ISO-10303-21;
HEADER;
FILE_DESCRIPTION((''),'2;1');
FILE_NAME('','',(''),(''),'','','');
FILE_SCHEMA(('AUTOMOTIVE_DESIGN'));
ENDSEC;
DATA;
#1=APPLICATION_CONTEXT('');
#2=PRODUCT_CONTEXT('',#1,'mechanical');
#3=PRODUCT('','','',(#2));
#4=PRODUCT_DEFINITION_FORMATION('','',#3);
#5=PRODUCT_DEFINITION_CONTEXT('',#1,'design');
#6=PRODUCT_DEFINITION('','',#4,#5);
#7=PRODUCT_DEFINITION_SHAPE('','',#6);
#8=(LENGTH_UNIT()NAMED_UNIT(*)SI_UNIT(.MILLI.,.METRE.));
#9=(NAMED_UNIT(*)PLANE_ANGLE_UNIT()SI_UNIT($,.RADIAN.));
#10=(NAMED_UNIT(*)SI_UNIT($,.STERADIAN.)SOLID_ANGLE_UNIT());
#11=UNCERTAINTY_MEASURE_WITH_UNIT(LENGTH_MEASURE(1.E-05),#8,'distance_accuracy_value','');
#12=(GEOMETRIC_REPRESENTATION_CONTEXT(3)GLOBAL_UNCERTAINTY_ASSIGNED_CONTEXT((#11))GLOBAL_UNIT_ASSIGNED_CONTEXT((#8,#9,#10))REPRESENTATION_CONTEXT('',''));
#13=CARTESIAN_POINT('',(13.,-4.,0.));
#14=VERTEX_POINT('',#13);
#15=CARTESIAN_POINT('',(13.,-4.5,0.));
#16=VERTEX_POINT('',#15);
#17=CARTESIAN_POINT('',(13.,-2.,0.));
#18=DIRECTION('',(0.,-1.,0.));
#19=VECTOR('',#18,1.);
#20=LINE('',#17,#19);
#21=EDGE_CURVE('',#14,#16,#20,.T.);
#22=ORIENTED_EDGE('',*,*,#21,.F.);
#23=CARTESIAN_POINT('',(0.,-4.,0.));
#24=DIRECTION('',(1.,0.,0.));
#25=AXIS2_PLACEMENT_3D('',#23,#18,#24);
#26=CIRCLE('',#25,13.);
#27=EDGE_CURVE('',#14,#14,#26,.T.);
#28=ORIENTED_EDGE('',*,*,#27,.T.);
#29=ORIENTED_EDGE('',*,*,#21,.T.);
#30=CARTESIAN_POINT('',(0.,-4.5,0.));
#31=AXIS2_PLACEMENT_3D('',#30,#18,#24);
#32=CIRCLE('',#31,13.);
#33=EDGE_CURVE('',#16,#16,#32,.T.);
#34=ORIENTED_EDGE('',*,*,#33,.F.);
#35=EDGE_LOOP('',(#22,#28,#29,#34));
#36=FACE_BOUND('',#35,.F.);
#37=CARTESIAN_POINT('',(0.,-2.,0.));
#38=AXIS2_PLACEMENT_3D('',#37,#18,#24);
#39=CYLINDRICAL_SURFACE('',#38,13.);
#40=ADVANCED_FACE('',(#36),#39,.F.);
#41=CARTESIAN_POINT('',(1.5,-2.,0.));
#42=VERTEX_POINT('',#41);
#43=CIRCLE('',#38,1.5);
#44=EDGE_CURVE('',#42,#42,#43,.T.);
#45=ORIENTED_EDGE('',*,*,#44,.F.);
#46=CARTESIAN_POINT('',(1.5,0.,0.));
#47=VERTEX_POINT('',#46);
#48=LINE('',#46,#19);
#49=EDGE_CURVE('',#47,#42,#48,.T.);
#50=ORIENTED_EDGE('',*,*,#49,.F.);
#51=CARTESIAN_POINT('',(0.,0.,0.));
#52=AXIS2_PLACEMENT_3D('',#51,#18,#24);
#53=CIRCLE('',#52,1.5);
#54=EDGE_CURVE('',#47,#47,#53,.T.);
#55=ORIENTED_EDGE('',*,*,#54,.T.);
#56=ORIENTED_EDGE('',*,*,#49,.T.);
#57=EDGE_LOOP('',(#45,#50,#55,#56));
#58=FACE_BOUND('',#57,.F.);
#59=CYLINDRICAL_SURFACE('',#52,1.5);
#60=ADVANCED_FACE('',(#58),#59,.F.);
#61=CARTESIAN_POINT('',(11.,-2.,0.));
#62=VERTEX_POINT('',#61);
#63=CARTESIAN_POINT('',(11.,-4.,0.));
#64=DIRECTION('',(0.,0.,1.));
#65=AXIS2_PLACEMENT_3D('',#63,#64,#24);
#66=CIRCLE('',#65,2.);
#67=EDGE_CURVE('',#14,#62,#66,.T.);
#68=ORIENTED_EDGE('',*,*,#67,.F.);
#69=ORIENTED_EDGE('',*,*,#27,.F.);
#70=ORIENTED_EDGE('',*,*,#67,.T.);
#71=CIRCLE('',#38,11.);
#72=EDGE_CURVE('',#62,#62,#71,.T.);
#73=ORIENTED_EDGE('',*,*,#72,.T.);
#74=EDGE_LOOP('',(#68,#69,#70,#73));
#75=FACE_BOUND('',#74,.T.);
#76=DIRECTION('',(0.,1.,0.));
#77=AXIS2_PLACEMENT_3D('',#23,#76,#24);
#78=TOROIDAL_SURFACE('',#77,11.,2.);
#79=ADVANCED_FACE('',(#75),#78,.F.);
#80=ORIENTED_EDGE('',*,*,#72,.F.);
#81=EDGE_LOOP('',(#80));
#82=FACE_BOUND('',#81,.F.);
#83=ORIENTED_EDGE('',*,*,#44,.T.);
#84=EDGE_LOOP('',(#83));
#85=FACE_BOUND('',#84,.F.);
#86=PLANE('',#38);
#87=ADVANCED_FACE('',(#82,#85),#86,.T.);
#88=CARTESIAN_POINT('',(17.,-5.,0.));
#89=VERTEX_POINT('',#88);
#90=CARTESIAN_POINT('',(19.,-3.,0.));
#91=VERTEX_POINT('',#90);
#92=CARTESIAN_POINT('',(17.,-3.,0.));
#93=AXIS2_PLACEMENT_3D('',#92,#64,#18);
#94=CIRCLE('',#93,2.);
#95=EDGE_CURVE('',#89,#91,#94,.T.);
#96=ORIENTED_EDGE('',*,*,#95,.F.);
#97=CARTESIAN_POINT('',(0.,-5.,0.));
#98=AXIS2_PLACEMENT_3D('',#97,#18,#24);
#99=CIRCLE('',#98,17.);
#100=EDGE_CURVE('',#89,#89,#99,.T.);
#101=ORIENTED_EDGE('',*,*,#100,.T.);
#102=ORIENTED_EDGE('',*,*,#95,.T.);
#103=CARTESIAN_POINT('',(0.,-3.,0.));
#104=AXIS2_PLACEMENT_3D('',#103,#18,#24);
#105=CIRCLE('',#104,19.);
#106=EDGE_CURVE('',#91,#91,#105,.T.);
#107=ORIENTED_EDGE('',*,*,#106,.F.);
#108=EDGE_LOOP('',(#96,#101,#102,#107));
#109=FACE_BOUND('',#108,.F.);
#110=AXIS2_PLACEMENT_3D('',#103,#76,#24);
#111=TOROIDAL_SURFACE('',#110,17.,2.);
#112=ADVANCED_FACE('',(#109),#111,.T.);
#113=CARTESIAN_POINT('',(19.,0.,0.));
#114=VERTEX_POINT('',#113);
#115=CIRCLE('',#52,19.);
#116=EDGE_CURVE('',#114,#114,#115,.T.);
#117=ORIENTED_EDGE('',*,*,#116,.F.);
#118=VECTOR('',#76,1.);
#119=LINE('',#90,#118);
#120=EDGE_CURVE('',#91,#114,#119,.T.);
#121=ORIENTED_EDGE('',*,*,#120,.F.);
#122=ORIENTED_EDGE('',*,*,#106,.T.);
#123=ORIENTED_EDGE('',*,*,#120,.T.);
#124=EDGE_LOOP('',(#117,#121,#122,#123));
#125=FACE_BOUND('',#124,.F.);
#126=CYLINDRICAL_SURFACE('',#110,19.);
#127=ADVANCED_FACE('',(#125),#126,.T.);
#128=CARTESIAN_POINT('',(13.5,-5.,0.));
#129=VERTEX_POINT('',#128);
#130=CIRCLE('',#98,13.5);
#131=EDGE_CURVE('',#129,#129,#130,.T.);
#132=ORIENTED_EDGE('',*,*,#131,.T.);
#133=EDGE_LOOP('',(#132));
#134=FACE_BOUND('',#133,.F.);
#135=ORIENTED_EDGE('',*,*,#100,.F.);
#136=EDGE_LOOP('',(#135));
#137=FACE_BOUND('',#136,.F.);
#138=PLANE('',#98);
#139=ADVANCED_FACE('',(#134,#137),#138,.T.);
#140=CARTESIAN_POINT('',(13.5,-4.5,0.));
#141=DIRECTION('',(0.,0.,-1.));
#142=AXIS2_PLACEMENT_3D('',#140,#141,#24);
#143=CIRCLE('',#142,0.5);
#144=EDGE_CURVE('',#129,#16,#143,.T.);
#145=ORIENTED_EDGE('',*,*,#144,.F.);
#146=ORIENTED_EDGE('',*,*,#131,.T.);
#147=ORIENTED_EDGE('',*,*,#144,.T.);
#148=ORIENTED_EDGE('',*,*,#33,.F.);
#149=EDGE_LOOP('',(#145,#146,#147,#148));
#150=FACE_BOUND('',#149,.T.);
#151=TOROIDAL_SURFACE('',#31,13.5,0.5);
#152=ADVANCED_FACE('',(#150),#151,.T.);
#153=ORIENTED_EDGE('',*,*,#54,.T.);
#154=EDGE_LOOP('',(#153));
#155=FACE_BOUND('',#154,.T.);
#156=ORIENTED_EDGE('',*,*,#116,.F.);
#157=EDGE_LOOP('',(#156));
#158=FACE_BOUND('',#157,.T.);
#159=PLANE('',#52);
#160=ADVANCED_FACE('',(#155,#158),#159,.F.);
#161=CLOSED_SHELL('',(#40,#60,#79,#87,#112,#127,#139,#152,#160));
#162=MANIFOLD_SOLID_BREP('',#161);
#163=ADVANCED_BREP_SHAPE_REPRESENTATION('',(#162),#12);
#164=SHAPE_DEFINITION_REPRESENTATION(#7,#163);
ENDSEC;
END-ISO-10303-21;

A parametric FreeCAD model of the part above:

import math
import FreeCAD as App
import Part
import Sketcher
from FreeCAD import Vector
Q = App.Units.Quantity


def edges_at(feature, points):
    """Names of the edges that pass closest to the given points."""
    edges = feature.Shape.Edges
    near = lambda p: min(range(len(edges)), key=lambda i: edges[i].distToShape(Part.Vertex(*p))[0])
    return sorted({f"Edge{near(p) + 1}" for p in points})

doc = App.newDocument("Part")
body = doc.addObject("PartDesign::Body", "Body")

# Sketch on XY plane
sketch1 = body.newObject("Sketcher::SketchObject", "Sketch")
sketch1.AttachmentSupport = (doc.getObject("XY_Plane"), [""])
sketch1.MapMode = "FlatFace"
sketch1.addGeometry([
    Part.LineSegment(Vector(19, 0, 0), Vector(1.5, 0, 0)),  # 0
    Part.LineSegment(Vector(1.5, 0, 0), Vector(1.5, -2, 0)),  # 1
    Part.LineSegment(Vector(1.5, -2, 0), Vector(13, -2, 0)),  # 2
    Part.LineSegment(Vector(13, -2, 0), Vector(13, -5, 0)),  # 3
    Part.LineSegment(Vector(13, -5, 0), Vector(17, -5, 0)),  # 4
    Part.ArcOfCircle(Part.Circle(Vector(17, -3, 0), Vector(0, 0, 1), 2), math.radians(-90), math.radians(0)),  # 5
    Part.LineSegment(Vector(19, -3, 0), Vector(19, 0, 0)),  # 6
], False)
sketch1.addConstraint([
    Sketcher.Constraint("Coincident", 0, 2, 1, 1),
    Sketcher.Constraint("Coincident", 1, 2, 2, 1),
    Sketcher.Constraint("Coincident", 2, 2, 3, 1),
    Sketcher.Constraint("Coincident", 3, 2, 4, 1),
    Sketcher.Constraint("Tangent", 4, 2, 5, 1),
    Sketcher.Constraint("Tangent", 5, 2, 6, 1),
    Sketcher.Constraint("Coincident", 6, 2, 0, 1),
    Sketcher.Constraint("Horizontal", 0),
    Sketcher.Constraint("Vertical", 1),
    Sketcher.Constraint("Horizontal", 2),
    Sketcher.Constraint("Vertical", 3),
    Sketcher.Constraint("Horizontal", 4),
    Sketcher.Constraint("Vertical", 6),
    Sketcher.Constraint("PointOnObject", 0, 2, -1),
    Sketcher.Constraint("Equal", 3, 6),
    Sketcher.Constraint("Radius", 5, Q("2 mm")),
    Sketcher.Constraint("DistanceX", 4, 1, 4, 2, Q("4 mm")),
    Sketcher.Constraint("DistanceY", 3, 2, -1, 1, Q("5 mm")),
    Sketcher.Constraint("DistanceX", -1, 1, 5, 2, Q("19 mm")),
    Sketcher.Constraint("DistanceX", -1, 1, 0, 2, Q("1.5 mm")),
])
revolution = body.newObject("PartDesign::Revolution", "Revolution")
revolution.Profile = sketch1
revolution.ReferenceAxis = (sketch1, ["V_Axis"])
revolution.Angle = 360
doc.recompute()

fillet = body.newObject("PartDesign::Fillet", "Fillet")
fillet.Base = (revolution, edges_at(revolution, [(-13, -5, 0)]))
fillet.Radius = 0.5
doc.recompute()

fillet2 = body.newObject("PartDesign::Fillet", "Fillet001")
fillet2.Base = (fillet, edges_at(fillet, [(-13, -2, 0)]))
fillet2.Radius = 2

doc.recompute()
